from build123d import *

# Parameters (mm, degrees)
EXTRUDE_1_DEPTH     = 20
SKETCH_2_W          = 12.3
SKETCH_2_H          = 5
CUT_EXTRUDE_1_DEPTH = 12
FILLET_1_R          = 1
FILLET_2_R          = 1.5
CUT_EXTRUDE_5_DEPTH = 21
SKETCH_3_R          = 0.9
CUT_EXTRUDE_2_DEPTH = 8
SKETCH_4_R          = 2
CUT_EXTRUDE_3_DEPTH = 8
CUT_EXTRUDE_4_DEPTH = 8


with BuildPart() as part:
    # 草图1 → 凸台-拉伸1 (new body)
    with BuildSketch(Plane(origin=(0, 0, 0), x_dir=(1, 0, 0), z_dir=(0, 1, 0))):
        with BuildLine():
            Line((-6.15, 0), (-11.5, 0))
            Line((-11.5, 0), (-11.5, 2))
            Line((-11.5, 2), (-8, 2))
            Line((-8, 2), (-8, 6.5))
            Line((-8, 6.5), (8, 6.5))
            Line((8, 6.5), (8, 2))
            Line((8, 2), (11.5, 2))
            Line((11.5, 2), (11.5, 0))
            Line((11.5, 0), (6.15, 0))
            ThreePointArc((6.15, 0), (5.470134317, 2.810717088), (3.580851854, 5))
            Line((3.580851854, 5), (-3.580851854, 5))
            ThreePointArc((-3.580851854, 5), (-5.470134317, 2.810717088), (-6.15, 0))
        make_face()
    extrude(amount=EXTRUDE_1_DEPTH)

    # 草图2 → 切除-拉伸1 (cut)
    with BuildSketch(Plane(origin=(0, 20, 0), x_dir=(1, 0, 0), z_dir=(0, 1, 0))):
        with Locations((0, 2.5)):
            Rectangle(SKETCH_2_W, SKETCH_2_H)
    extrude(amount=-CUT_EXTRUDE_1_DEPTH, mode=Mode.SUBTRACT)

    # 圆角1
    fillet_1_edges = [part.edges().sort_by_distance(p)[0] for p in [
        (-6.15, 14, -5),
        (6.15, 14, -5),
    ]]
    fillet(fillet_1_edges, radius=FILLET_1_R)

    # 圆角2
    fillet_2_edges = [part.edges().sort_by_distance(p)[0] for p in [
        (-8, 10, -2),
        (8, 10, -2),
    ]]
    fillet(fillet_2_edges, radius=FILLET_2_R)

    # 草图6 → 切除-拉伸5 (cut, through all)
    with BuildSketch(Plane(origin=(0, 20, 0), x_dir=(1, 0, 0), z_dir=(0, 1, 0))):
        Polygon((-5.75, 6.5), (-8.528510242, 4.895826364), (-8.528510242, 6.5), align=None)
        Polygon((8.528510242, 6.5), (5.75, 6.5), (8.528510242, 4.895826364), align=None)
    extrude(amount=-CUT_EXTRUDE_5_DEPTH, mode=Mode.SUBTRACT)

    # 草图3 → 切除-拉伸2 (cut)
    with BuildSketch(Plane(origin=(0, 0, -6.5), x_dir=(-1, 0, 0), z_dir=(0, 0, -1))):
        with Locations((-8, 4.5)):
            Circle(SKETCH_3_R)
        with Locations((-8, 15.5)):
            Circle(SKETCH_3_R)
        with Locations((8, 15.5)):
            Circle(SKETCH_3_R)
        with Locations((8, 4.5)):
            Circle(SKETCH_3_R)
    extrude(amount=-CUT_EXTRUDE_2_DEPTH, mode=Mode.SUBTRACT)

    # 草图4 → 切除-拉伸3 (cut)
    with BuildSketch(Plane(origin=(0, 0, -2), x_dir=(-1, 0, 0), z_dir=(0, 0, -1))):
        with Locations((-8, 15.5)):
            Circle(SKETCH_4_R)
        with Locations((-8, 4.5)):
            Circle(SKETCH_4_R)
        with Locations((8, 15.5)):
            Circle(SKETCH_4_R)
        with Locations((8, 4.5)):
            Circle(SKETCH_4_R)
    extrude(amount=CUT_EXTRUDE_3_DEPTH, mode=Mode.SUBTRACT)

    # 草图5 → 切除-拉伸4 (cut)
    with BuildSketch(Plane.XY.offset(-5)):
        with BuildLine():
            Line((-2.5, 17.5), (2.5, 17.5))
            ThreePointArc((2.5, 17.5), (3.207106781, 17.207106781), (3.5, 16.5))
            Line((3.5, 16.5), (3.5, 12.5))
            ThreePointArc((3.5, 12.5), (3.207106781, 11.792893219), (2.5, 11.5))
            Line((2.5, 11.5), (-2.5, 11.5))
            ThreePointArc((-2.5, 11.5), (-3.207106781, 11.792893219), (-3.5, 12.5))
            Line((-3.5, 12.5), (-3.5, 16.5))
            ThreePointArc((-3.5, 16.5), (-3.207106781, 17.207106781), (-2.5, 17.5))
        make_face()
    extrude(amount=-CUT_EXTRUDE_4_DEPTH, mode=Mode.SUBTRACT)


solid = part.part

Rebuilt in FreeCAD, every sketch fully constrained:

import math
import FreeCAD as App
import Part
import Sketcher

V = App.Vector
Q = App.Units.Quantity


def edges_at(feature, points):
    """Names of the edges that pass closest to the given points."""
    edges = feature.Shape.Edges
    near = lambda p: min(range(len(edges)), key=lambda i: edges[i].distToShape(Part.Vertex(*p))[0])
    return sorted({f"Edge{near(p) + 1}" for p in points})

doc = App.newDocument("Part")
body = doc.addObject("PartDesign::Body", "Body")

sketch1 = doc.addObject("Sketcher::SketchObject", "Sketch")
body.addObject(sketch1)
sketch1.AttachmentSupport = (doc.XZ_Plane, [""])
sketch1.MapMode = "FlatFace"
sketch1.addGeometry(Part.LineSegment(V(-11.5, 0, 0), V(-6.2, 0, 0)), False)
sketch1.addGeometry(Part.ArcOfCircle(Part.Circle(V(0, 0, 0), V(0, 0, 1), 6.2), math.radians(-180), math.radians(-126)), False)
sketch1.addGeometry(Part.LineSegment(V(-3.6, -5, 0), V(3.6, -5, 0)), False)
sketch1.addGeometry(Part.ArcOfCircle(Part.Circle(V(0, 0, 0), V(0, 0, 1), 6.2), math.radians(-54), math.radians(0)), False)
sketch1.addGeometry(Part.LineSegment(V(6.2, 0, 0), V(11.5, 0, 0)), False)
sketch1.addGeometry(Part.LineSegment(V(11.5, 0, 0), V(11.5, -2, 0)), False)
sketch1.addGeometry(Part.LineSegment(V(11.5, -2, 0), V(8, -2, 0)), False)
sketch1.addGeometry(Part.LineSegment(V(8, -2, 0), V(8, -6.5, 0)), False)
sketch1.addGeometry(Part.LineSegment(V(8, -6.5, 0), V(-8, -6.5, 0)), False)
sketch1.addGeometry(Part.LineSegment(V(-8, -6.5, 0), V(-8, -2, 0)), False)
sketch1.addGeometry(Part.LineSegment(V(-8, -2, 0), V(-11.5, -2, 0)), False)
sketch1.addGeometry(Part.LineSegment(V(-11.5, -2, 0), V(-11.5, 0, 0)), False)
sketch1.addConstraint(Sketcher.Constraint("Coincident", 0, 2, 1, 1))
sketch1.addConstraint(Sketcher.Constraint("Coincident", 1, 2, 2, 1))
sketch1.addConstraint(Sketcher.Constraint("Coincident", 2, 2, 3, 1))
sketch1.addConstraint(Sketcher.Constraint("Coincident", 3, 2, 4, 1))
sketch1.addConstraint(Sketcher.Constraint("Coincident", 4, 2, 5, 1))
sketch1.addConstraint(Sketcher.Constraint("Coincident", 5, 2, 6, 1))
sketch1.addConstraint(Sketcher.Constraint("Coincident", 6, 2, 7, 1))
sketch1.addConstraint(Sketcher.Constraint("Coincident", 7, 2, 8, 1))
sketch1.addConstraint(Sketcher.Constraint("Coincident", 8, 2, 9, 1))
sketch1.addConstraint(Sketcher.Constraint("Coincident", 9, 2, 10, 1))
sketch1.addConstraint(Sketcher.Constraint("Coincident", 10, 2, 11, 1))
sketch1.addConstraint(Sketcher.Constraint("Coincident", 11, 2, 0, 1))
sketch1.addConstraint(Sketcher.Constraint("Horizontal", 0))
sketch1.addConstraint(Sketcher.Constraint("Horizontal", 2))
sketch1.addConstraint(Sketcher.Constraint("Horizontal", 4))
sketch1.addConstraint(Sketcher.Constraint("Vertical", 5))
sketch1.addConstraint(Sketcher.Constraint("Horizontal", 6))
sketch1.addConstraint(Sketcher.Constraint("Vertical", 7))
sketch1.addConstraint(Sketcher.Constraint("Horizontal", 8))
sketch1.addConstraint(Sketcher.Constraint("Vertical", 9))
sketch1.addConstraint(Sketcher.Constraint("Horizontal", 10))
sketch1.addConstraint(Sketcher.Constraint("Vertical", 11))
sketch1.addConstraint(Sketcher.Constraint("Coincident", 1, 3, -1, 1))
sketch1.addConstraint(Sketcher.Constraint("Coincident", 3, 3, -1, 1))
sketch1.addConstraint(Sketcher.Constraint("Equal", 1, 3))
sketch1.addConstraint(Sketcher.Constraint("Symmetric", 4, 2, 11, 2, -1, 1))
sketch1.addConstraint(Sketcher.Constraint("Symmetric", 6, 2, 9, 2, -2))
sketch1.addConstraint(Sketcher.Constraint("PointOnObject", 0, 2, -1))
sketch1.addConstraint(Sketcher.Constraint("DistanceX", 8, 2, 8, 1, Q("16 mm")))
sketch1.addConstraint(Sketcher.Constraint("DistanceY", 5, 2, 5, 1, Q("2 mm")))
sketch1.addConstraint(Sketcher.Constraint("Radius", 1, Q("6.15 mm")))
sketch1.addConstraint(Sketcher.Constraint("DistanceX", 6, 2, 6, 1, Q("3.5 mm")))
sketch1.addConstraint(Sketcher.Constraint("DistanceY", 7, 2, 7, 1, Q("4.5 mm")))
sketch1.addConstraint(Sketcher.Constraint("DistanceY", 1, 2, -1, 1, Q("5 mm")))
pad1 = doc.addObject("PartDesign::Pad", "Pad")
body.addObject(pad1)
pad1.Profile = sketch1
pad1.Length = 20
pad1.Reversed = True

sketch2 = doc.addObject("Sketcher::SketchObject", "Sketch001")
body.addObject(sketch2)
sketch2.AttachmentSupport = (doc.XZ_Plane, [""])
sketch2.MapMode = "FlatFace"
sketch2.AttachmentOffset = App.Placement(V(0, 0, -20), App.Rotation())
sketch2.addGeometry(Part.LineSegment(V(-6, -5, 0), V(-6, 0, 0)), False)
sketch2.addGeometry(Part.LineSegment(V(-6, 0, 0), V(6, 0, 0)), False)
sketch2.addGeometry(Part.LineSegment(V(6, 0, 0), V(6, -5, 0)), False)
sketch2.addGeometry(Part.LineSegment(V(6, -5, 0), V(-6, -5, 0)), False)
sketch2.addConstraint(Sketcher.Constraint("Coincident", 0, 2, 1, 1))
sketch2.addConstraint(Sketcher.Constraint("Coincident", 1, 2, 2, 1))
sketch2.addConstraint(Sketcher.Constraint("Coincident", 2, 2, 3, 1))
sketch2.addConstraint(Sketcher.Constraint("Coincident", 3, 2, 0, 1))
sketch2.addConstraint(Sketcher.Constraint("Vertical", 0))
sketch2.addConstraint(Sketcher.Constraint("Horizontal", 1))
sketch2.addConstraint(Sketcher.Constraint("Vertical", 2))
sketch2.addConstraint(Sketcher.Constraint("Horizontal", 3))
sketch2.addConstraint(Sketcher.Constraint("Symmetric", 0, 2, 1, 2, -1, 1))
sketch2.addConstraint(Sketcher.Constraint("DistanceY", 0, 1, 0, 2, Q("5 mm")))
sketch2.addConstraint(Sketcher.Constraint("DistanceX", 1, 1, 1, 2, Q("12.3 mm")))
pocket1 = doc.addObject("PartDesign::Pocket", "Pocket")
body.addObject(pocket1)
pocket1.Profile = sketch2
pocket1.Length = 12
pocket1.Reversed = True
doc.recompute()

fillet = doc.addObject("PartDesign::Fillet", "Fillet")
body.addObject(fillet)
fillet.Base = (pocket1, edges_at(pocket1, [(-6.15, 14, -5), (6.15, 14, -5)]))
fillet.Radius = 1
doc.recompute()

fillet2 = doc.addObject("PartDesign::Fillet", "Fillet001")
body.addObject(fillet2)
fillet2.Base = (fillet, edges_at(fillet, [(-8, 10, -2), (8, 10, -2)]))
fillet2.Radius = 1.5

sketch3 = doc.addObject("Sketcher::SketchObject", "Sketch002")
body.addObject(sketch3)
sketch3.AttachmentSupport = (doc.XZ_Plane, [""])
sketch3.MapMode = "FlatFace"
sketch3.AttachmentOffset = App.Placement(V(0, 0, -20), App.Rotation())
sketch3.addGeometry(Part.LineSegment(V(-8.5, -4.9, 0), V(-5.8, -6.5, 0)), False)
sketch3.addGeometry(Part.LineSegment(V(-5.8, -6.5, 0), V(-8.5, -6.5, 0)), False)
sketch3.addGeometry(Part.LineSegment(V(-8.5, -6.5, 0), V(-8.5, -4.9, 0)), False)
sketch3.addGeometry(Part.LineSegment(V(8.5, -6.5, 0), V(5.8, -6.5, 0)), False)
sketch3.addGeometry(Part.LineSegment(V(5.8, -6.5, 0), V(8.5, -4.9, 0)), False)
sketch3.addGeometry(Part.LineSegment(V(8.5, -4.9, 0), V(8.5, -6.5, 0)), False)
sketch3.addConstraint(Sketcher.Constraint("Coincident", 0, 2, 1, 1))
sketch3.addConstraint(Sketcher.Constraint("Coincident", 1, 2, 2, 1))
sketch3.addConstraint(Sketcher.Constraint("Coincident", 2, 2, 0, 1))
sketch3.addConstraint(Sketcher.Constraint("Coincident", 3, 2, 4, 1))
sketch3.addConstraint(Sketcher.Constraint("Coincident", 4, 2, 5, 1))
sketch3.addConstraint(Sketcher.Constraint("Coincident", 5, 2, 3, 1))
sketch3.addConstraint(Sketcher.Constraint("Horizontal", 1))
sketch3.addConstraint(Sketcher.Constraint("Vertical", 2))
sketch3.addConstraint(Sketcher.Constraint("Horizontal", 3))
sketch3.addConstraint(Sketcher.Constraint("Vertical", 5))
sketch3.addConstraint(Sketcher.Constraint("Symmetric", 0, 2, 3, 2, -2))
sketch3.addConstraint(Sketcher.Constraint("Symmetric", 2, 2, 4, 2, -2))
sketch3.addConstraint(Sketcher.Constraint("Angle", 0, Q("-30 deg")))
sketch3.addConstraint(Sketcher.Constraint("DistanceY", 0, 2, -1, 1, Q("6.5 mm")))
sketch3.addConstraint(Sketcher.Constraint("DistanceX", 0, 2, 3, 2, Q("11.5 mm")))
sketch3.addConstraint(Sketcher.Constraint("DistanceX", 1, 2, 1, 1, Q("2.77851 mm")))
pocket2 = doc.addObject("PartDesign::Pocket", "Pocket001")
body.addObject(pocket2)
pocket2.Profile = sketch3
pocket2.Type = "ThroughAll"
pocket2.Reversed = True

sketch4 = doc.addObject("Sketcher::SketchObject", "Sketch003")
body.addObject(sketch4)
sketch4.AttachmentSupport = (doc.XY_Plane, [""])
sketch4.MapMode = "FlatFace"
sketch4.AttachmentOffset = App.Placement(V(0, 0, -6.5), App.Rotation())
sketch4.addGeometry(Part.Circle(V(8, 4.5, 0), V(0, 0, 1), 0.9), False)
sketch4.addGeometry(Part.Circle(V(8, 15.5, 0), V(0, 0, 1), 0.9), False)
sketch4.addGeometry(Part.Circle(V(-8, 15.5, 0), V(0, 0, 1), 0.9), False)
sketch4.addGeometry(Part.Circle(V(-8, 4.5, 0), V(0, 0, 1), 0.9), False)
sketch4.addConstraint(Sketcher.Constraint("Equal", 0, 1))
sketch4.addConstraint(Sketcher.Constraint("Equal", 1, 2))
sketch4.addConstraint(Sketcher.Constraint("Equal", 2, 3))
sketch4.addConstraint(Sketcher.Constraint("Symmetric", 1, 3, 2, 3, -2))
sketch4.addConstraint(Sketcher.Constraint("Symmetric", 0, 3, 3, 3, -2))
sketch4.addConstraint(Sketcher.Constraint("Vertical", 0, 3, 1, 3))
sketch4.addConstraint(Sketcher.Constraint("Diameter", 0, Q("1.8 mm")))
sketch4.addConstraint(Sketcher.Constraint("DistanceX", -1, 1, 0, 3, Q("8 mm")))
sketch4.addConstraint(Sketcher.Constraint("DistanceY", 0, 3, 1, 3, Q("11 mm")))
sketch4.addConstraint(Sketcher.Constraint("DistanceY", -1, 1, 0, 3, Q("4.5 mm")))
pocket3 = doc.addObject("PartDesign::Pocket", "Pocket002")
body.addObject(pocket3)
pocket3.Profile = sketch4
pocket3.Length = 8
pocket3.Reversed = True

sketch5 = doc.addObject("Sketcher::SketchObject", "Sketch004")
body.addObject(sketch5)
sketch5.AttachmentSupport = (doc.XY_Plane, [""])
sketch5.MapMode = "FlatFace"
sketch5.AttachmentOffset = App.Placement(V(0, 0, -2), App.Rotation())
sketch5.addGeometry(Part.Circle(V(8, 15.5, 0), V(0, 0, 1), 2), False)
sketch5.addGeometry(Part.Circle(V(8, 4.5, 0), V(0, 0, 1), 2), False)
sketch5.addGeometry(Part.Circle(V(-8, 15.5, 0), V(0, 0, 1), 2), False)
sketch5.addGeometry(Part.Circle(V(-8, 4.5, 0), V(0, 0, 1), 2), False)
sketch5.addConstraint(Sketcher.Constraint("Equal", 0, 1))
sketch5.addConstraint(Sketcher.Constraint("Equal", 1, 2))
sketch5.addConstraint(Sketcher.Constraint("Equal", 2, 3))
sketch5.addConstraint(Sketcher.Constraint("Symmetric", 0, 3, 2, 3, -2))
sketch5.addConstraint(Sketcher.Constraint("Symmetric", 1, 3, 3, 3, -2))
sketch5.addConstraint(Sketcher.Constraint("Vertical", 0, 3, 1, 3))
sketch5.addConstraint(Sketcher.Constraint("Diameter", 0, Q("4 mm")))
sketch5.addConstraint(Sketcher.Constraint("DistanceX", -1, 1, 0, 3, Q("8 mm")))
sketch5.addConstraint(Sketcher.Constraint("DistanceY", 1, 3, 0, 3, Q("11 mm")))
sketch5.addConstraint(Sketcher.Constraint("DistanceY", -1, 1, 0, 3, Q("15.5 mm")))
pocket4 = doc.addObject("PartDesign::Pocket", "Pocket003")
body.addObject(pocket4)
pocket4.Profile = sketch5
pocket4.Length = 8

sketch6 = doc.addObject("Sketcher::SketchObject", "Sketch005")
body.addObject(sketch6)
sketch6.AttachmentSupport = (doc.XY_Plane, [""])
sketch6.MapMode = "FlatFace"
sketch6.AttachmentOffset = App.Placement(V(0, 0, -5), App.Rotation())
sketch6.addGeometry(Part.LineSegment(V(2.5, 17.5, 0), V(-2.5, 17.5, 0)), False)
sketch6.addGeometry(Part.ArcOfCircle(Part.Circle(V(-2.5, 16.5, 0), V(0, 0, 1), 1), math.radians(90), math.radians(180)), False)
sketch6.addGeometry(Part.LineSegment(V(-3.5, 16.5, 0), V(-3.5, 12.5, 0)), False)
sketch6.addGeometry(Part.ArcOfCircle(Part.Circle(V(-2.5, 12.5, 0), V(0, 0, 1), 1), math.radians(-180), math.radians(-90)), False)
sketch6.addGeometry(Part.LineSegment(V(-2.5, 11.5, 0), V(2.5, 11.5, 0)), False)
sketch6.addGeometry(Part.ArcOfCircle(Part.Circle(V(2.5, 12.5, 0), V(0, 0, 1), 1), math.radians(-90), math.radians(0)), False)
sketch6.addGeometry(Part.LineSegment(V(3.5, 12.5, 0), V(3.5, 16.5, 0)), False)
sketch6.addGeometry(Part.ArcOfCircle(Part.Circle(V(2.5, 16.5, 0), V(0, 0, 1), 1), math.radians(0), math.radians(90)), False)
sketch6.addConstraint(Sketcher.Constraint("Tangent", 0, 2, 1, 1))
sketch6.addConstraint(Sketcher.Constraint("Tangent", 1, 2, 2, 1))
sketch6.addConstraint(Sketcher.Constraint("Tangent", 2, 2, 3, 1))
sketch6.addConstraint(Sketcher.Constraint("Tangent", 3, 2, 4, 1))
sketch6.addConstraint(Sketcher.Constraint("Tangent", 4, 2, 5, 1))
sketch6.addConstraint(Sketcher.Constraint("Tangent", 5, 2, 6, 1))
sketch6.addConstraint(Sketcher.Constraint("Tangent", 6, 2, 7, 1))
sketch6.addConstraint(Sketcher.Constraint("Tangent", 7, 2, 0, 1))
sketch6.addConstraint(Sketcher.Constraint("Horizontal", 0))
sketch6.addConstraint(Sketcher.Constraint("Vertical", 2))
sketch6.addConstraint(Sketcher.Constraint("Horizontal", 4))
sketch6.addConstraint(Sketcher.Constraint("Vertical", 6))
sketch6.addConstraint(Sketcher.Constraint("Equal", 1, 3))
sketch6.addConstraint(Sketcher.Constraint("Equal", 3, 5))
sketch6.addConstraint(Sketcher.Constraint("Equal", 5, 7))
sketch6.addConstraint(Sketcher.Constraint("Radius", 1, Q("1 mm")))
sketch6.addConstraint(Sketcher.Constraint("DistanceX", 0, 2, 0, 1, Q("5 mm")))
sketch6.addConstraint(Sketcher.Constraint("DistanceY", 2, 2, 2, 1, Q("4 mm")))
sketch6.addConstraint(Sketcher.Constraint("DistanceX", 1, 3, -1, 1, Q("2.5 mm")))
sketch6.addConstraint(Sketcher.Constraint("DistanceY", -1, 1, 1, 3, Q("16.5 mm")))
pocket5 = doc.addObject("PartDesign::Pocket", "Pocket004")
body.addObject(pocket5)
pocket5.Profile = sketch6
pocket5.Length = 8

doc.recompute()
